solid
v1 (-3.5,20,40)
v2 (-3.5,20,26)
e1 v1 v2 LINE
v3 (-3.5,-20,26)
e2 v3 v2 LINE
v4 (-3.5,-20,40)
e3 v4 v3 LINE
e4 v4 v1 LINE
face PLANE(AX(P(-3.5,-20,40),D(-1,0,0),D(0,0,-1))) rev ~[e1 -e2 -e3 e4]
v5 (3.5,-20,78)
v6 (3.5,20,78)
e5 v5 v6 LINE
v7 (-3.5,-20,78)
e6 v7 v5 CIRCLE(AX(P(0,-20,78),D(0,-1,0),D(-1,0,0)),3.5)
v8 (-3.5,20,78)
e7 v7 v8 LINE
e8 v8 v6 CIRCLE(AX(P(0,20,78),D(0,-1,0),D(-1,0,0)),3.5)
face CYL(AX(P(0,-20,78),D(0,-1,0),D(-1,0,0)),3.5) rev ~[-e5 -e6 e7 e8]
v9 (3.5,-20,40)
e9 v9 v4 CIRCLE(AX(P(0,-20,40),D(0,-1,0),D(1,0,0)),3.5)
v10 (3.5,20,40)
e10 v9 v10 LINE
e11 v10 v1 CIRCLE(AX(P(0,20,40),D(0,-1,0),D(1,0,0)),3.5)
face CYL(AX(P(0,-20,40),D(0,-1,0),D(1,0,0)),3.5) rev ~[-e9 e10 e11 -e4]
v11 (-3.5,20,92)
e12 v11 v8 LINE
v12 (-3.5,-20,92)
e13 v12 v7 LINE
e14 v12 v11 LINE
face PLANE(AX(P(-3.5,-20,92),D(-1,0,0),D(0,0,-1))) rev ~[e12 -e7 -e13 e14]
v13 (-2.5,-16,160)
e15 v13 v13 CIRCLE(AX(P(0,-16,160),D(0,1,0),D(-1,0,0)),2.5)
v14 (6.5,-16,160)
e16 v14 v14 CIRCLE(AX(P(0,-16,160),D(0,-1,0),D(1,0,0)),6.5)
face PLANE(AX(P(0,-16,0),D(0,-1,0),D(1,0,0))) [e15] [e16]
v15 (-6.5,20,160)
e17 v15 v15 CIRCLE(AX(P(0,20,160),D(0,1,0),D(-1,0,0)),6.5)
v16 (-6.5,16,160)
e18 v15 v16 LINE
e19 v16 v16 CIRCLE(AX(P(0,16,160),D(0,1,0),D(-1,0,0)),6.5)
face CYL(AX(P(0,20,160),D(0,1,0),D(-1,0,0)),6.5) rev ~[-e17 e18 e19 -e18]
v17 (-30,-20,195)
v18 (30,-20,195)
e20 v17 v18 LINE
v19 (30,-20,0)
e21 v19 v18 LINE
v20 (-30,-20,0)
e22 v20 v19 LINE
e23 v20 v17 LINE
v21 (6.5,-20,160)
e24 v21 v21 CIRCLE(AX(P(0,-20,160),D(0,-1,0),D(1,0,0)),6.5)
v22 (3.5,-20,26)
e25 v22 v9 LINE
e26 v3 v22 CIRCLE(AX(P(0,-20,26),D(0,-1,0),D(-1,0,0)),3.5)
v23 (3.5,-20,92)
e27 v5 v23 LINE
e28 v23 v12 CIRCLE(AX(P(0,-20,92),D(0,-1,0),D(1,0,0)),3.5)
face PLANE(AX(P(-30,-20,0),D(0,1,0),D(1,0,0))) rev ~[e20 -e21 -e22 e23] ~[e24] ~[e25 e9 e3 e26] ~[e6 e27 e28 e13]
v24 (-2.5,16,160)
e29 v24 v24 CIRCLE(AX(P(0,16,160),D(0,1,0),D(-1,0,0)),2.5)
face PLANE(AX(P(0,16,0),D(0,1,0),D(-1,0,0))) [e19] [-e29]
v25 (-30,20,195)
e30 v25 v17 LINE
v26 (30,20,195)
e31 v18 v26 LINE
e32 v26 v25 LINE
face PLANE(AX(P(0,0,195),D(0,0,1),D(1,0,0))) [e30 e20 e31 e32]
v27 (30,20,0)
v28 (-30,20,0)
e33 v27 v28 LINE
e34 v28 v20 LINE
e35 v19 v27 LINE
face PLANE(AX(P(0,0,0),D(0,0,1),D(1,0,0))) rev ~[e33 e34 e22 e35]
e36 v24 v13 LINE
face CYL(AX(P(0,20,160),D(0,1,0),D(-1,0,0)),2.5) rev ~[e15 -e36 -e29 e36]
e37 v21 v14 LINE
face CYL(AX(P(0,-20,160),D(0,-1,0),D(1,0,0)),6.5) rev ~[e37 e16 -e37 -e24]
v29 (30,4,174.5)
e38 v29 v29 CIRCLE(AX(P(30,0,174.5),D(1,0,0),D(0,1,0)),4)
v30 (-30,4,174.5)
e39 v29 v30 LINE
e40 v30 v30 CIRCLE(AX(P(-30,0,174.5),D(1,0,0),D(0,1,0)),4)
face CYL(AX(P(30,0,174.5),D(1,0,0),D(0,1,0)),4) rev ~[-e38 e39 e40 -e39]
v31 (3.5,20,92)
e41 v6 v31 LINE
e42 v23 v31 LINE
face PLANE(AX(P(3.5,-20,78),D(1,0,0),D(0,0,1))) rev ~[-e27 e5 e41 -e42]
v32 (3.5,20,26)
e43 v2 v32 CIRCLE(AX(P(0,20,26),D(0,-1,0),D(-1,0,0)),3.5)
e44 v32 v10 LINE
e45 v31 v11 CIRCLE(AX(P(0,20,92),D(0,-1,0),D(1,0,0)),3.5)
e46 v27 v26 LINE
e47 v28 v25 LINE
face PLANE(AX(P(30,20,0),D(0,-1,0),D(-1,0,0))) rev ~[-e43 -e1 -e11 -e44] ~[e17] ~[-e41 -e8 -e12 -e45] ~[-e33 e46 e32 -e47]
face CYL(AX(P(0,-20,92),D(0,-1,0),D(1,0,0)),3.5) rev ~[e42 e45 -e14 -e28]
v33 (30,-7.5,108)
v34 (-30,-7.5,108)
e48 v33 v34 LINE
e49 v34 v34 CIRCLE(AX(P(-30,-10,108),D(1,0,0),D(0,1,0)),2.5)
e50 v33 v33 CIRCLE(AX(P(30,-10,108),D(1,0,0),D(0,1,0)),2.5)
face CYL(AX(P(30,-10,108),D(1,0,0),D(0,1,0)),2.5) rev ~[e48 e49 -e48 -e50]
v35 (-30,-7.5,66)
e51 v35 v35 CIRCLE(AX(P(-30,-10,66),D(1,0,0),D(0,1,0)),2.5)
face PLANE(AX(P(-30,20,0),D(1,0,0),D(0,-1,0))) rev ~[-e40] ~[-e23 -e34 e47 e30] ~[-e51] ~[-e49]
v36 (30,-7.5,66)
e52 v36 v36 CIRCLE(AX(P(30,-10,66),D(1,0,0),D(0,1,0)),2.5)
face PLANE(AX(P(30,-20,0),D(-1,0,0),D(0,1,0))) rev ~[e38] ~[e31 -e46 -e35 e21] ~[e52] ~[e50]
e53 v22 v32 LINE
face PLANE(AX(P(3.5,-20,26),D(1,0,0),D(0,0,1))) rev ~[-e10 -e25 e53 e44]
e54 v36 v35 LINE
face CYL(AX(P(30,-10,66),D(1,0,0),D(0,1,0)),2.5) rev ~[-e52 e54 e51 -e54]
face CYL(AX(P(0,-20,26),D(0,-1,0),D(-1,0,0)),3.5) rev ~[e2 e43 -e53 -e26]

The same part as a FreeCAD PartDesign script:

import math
import FreeCAD as App
import Part
import Sketcher
Q = App.Units.Quantity

doc = App.newDocument("Part")
body = doc.addObject("PartDesign::Body", "Body")

sketch1 = body.newObject("Sketcher::SketchObject", "Sketch")
sketch1.AttachmentSupport = (doc.getObject("XY_Plane"), [""])
sketch1.MapMode = "FlatFace"
sketch1.addGeometry([
    Part.LineSegment(App.Vector(30, -20, 0), App.Vector(30, 20, 0)),
    Part.LineSegment(App.Vector(30, 20, 0), App.Vector(-30, 20, 0)),
    Part.LineSegment(App.Vector(-30, 20, 0), App.Vector(-30, -20, 0)),
    Part.LineSegment(App.Vector(-30, -20, 0), App.Vector(30, -20, 0)),
], False)
sketch1.addConstraint([
    Sketcher.Constraint("Coincident", 0, 2, 1, 1),
    Sketcher.Constraint("Coincident", 1, 2, 2, 1),
    Sketcher.Constraint("Coincident", 2, 2, 3, 1),
    Sketcher.Constraint("Coincident", 3, 2, 0, 1),
    Sketcher.Constraint("Vertical", 0),
    Sketcher.Constraint("Horizontal", 1),
    Sketcher.Constraint("Vertical", 2),
    Sketcher.Constraint("Horizontal", 3),
    Sketcher.Constraint("Symmetric", 0, 2, 2, 2, -1, 1),
    Sketcher.Constraint("DistanceX", 1, 2, 1, 1, Q("60 mm")),
    Sketcher.Constraint("DistanceY", 0, 1, 0, 2, Q("40 mm")),
])
pad1 = body.newObject("PartDesign::Pad", "Pad")
pad1.Profile = sketch1
pad1.Length = 195

sketch2 = body.newObject("Sketcher::SketchObject", "Sketch001")
sketch2.AttachmentSupport = (doc.getObject("XZ_Plane"), [""])
sketch2.MapMode = "FlatFace"
sketch2.AttachmentOffset = App.Placement(App.Vector(0, 0, 20), App.Rotation())
sketch2.addGeometry([
    Part.ArcOfCircle(Part.Circle(App.Vector(0, 40, 0), App.Vector(0, 0, 1), 3.5), math.radians(0), math.radians(180)),
    Part.LineSegment(App.Vector(-3.5, 40, 0), App.Vector(-3.5, 26, 0)),
    Part.ArcOfCircle(Part.Circle(App.Vector(0, 26, 0), App.Vector(0, 0, 1), 3.5), math.radians(180), math.radians(360)),
    Part.LineSegment(App.Vector(3.5, 26, 0), App.Vector(3.5, 40, 0)),
    Part.ArcOfCircle(Part.Circle(App.Vector(0, 92, 0), App.Vector(0, 0, 1), 3.5), math.radians(0), math.radians(180)),
    Part.LineSegment(App.Vector(-3.5, 92, 0), App.Vector(-3.5, 78, 0)),
    Part.ArcOfCircle(Part.Circle(App.Vector(0, 78, 0), App.Vector(0, 0, 1), 3.5), math.radians(180), math.radians(360)),
    Part.LineSegment(App.Vector(3.5, 78, 0), App.Vector(3.5, 92, 0)),
], False)
sketch2.addConstraint([
    Sketcher.Constraint("Tangent", 0, 2, 1, 1),
    Sketcher.Constraint("Tangent", 1, 2, 2, 1),
    Sketcher.Constraint("Tangent", 2, 2, 3, 1),
    Sketcher.Constraint("Tangent", 3, 2, 0, 1),
    Sketcher.Constraint("Tangent", 4, 2, 5, 1),
    Sketcher.Constraint("Tangent", 5, 2, 6, 1),
    Sketcher.Constraint("Tangent", 6, 2, 7, 1),
    Sketcher.Constraint("Tangent", 7, 2, 4, 1),
    Sketcher.Constraint("Vertical", 1),
    Sketcher.Constraint("Vertical", 3),
    Sketcher.Constraint("Vertical", 5),
    Sketcher.Constraint("Vertical", 7),
    Sketcher.Constraint("Equal", 2, 4),
    Sketcher.Constraint("PointOnObject", 0, 3, -2),
    Sketcher.Constraint("PointOnObject", 4, 3, -2),
    Sketcher.Constraint("Equal", 3, 5),
    Sketcher.Constraint("Radius", 0, Q("3.5 mm")),
    Sketcher.Constraint("DistanceY", 1, 2, 1, 1, Q("14 mm")),
    Sketcher.Constraint("DistanceY", -1, 1, 0, 3, Q("40 mm")),
    Sketcher.Constraint("DistanceY", -1, 1, 4, 3, Q("92 mm")),
])
pocket1 = body.newObject("PartDesign::Pocket", "Pocket")
pocket1.Profile = sketch2
pocket1.Length = 40

sketch3 = body.newObject("Sketcher::SketchObject", "Sketch002")
sketch3.AttachmentSupport = (doc.getObject("YZ_Plane"), [""])
sketch3.MapMode = "FlatFace"
sketch3.AttachmentOffset = App.Placement(App.Vector(0, 0, 30), App.Rotation())
sketch3.addGeometry(Part.Circle(App.Vector(0, 174.5, 0), App.Vector(0, 0, 1), 4), False)
sketch3.addConstraint([
    Sketcher.Constraint("PointOnObject", 0, 3, -2),
    Sketcher.Constraint("Diameter", 0, Q("8 mm")),
    Sketcher.Constraint("DistanceY", -1, 1, 0, 3, Q("174.5 mm")),
])
pocket2 = body.newObject("PartDesign::Pocket", "Pocket001")
pocket2.Profile = sketch3
pocket2.Length = 60

sketch4 = body.newObject("Sketcher::SketchObject", "Sketch003")
sketch4.AttachmentSupport = (doc.getObject("XZ_Plane"), [""])
sketch4.MapMode = "FlatFace"
sketch4.AttachmentOffset = App.Placement(App.Vector(0, 0, -20), App.Rotation())
sketch4.addGeometry(Part.Circle(App.Vector(0, 160, 0), App.Vector(0, 0, 1), 2.5), False)
sketch4.addConstraint([
    Sketcher.Constraint("PointOnObject", 0, 3, -2),
    Sketcher.Constraint("Diameter", 0, Q("5 mm")),
    Sketcher.Constraint("DistanceY", -1, 1, 0, 3, Q("160 mm")),
])
pocket3 = body.newObject("PartDesign::Pocket", "Pocket002")
pocket3.Profile = sketch4
pocket3.Length = 40
pocket3.Reversed = True

sketch5 = body.newObject("Sketcher::SketchObject", "Sketch004")
sketch5.AttachmentSupport = (doc.getObject("YZ_Plane"), [""])
sketch5.MapMode = "FlatFace"
sketch5.AttachmentOffset = App.Placement(App.Vector(0, 0, 30), App.Rotation())
sketch5.addGeometry([
    Part.Circle(App.Vector(-10, 108, 0), App.Vector(0, 0, 1), 2.5),
    Part.Circle(App.Vector(-10, 66, 0), App.Vector(0, 0, 1), 2.5),
], False)
sketch5.addConstraint([
    Sketcher.Constraint("Equal", 0, 1),
    Sketcher.Constraint("Vertical", 0, 3, 1, 3),
    Sketcher.Constraint("Diameter", 0, Q("5 mm")),
    Sketcher.Constraint("DistanceX", 0, 3, -1, 1, Q("10 mm")),
    Sketcher.Constraint("DistanceY", -1, 1, 0, 3, Q("108 mm")),
    Sketcher.Constraint("DistanceY", -1, 1, 1, 3, Q("66 mm")),
])
pocket4 = body.newObject("PartDesign::Pocket", "Pocket003")
pocket4.Profile = sketch5
pocket4.Length = 80

sketch6 = body.newObject("Sketcher::SketchObject", "Sketch005")
sketch6.AttachmentSupport = (doc.getObject("XZ_Plane"), [""])
sketch6.MapMode = "FlatFace"
sketch6.AttachmentOffset = App.Placement(App.Vector(0, 0, -20), App.Rotation())
sketch6.addGeometry([
    Part.Circle(App.Vector(0, 160, 0), App.Vector(0, 0, 1), 6.5),
    Part.Circle(App.Vector(0, 160, 0), App.Vector(0, 0, 1), 2.5),
], False)
sketch6.addConstraint([
    Sketcher.Constraint("Coincident", 1, 3, 0, 3),
    Sketcher.Constraint("PointOnObject", 0, 3, -2),
    Sketcher.Constraint("Diameter", 0, Q("13 mm")),
    Sketcher.Constraint("Diameter", 1, Q("5 mm")),
    Sketcher.Constraint("DistanceY", -1, 1, 0, 3, Q("160 mm")),
])
pocket5 = body.newObject("PartDesign::Pocket", "Pocket004")
pocket5.Profile = sketch6
pocket5.Length = 4
pocket5.Reversed = True

sketch7 = body.newObject("Sketcher::SketchObject", "Sketch006")
sketch7.AttachmentSupport = (doc.getObject("XZ_Plane"), [""])
sketch7.MapMode = "FlatFace"
sketch7.AttachmentOffset = App.Placement(App.Vector(0, 0, 20), App.Rotation())
sketch7.addGeometry([
    Part.Circle(App.Vector(0, 160, 0), App.Vector(0, 0, 1), 6.5),
    Part.Circle(App.Vector(0, 160, 0), App.Vector(0, 0, 1), 2.5),
], False)
sketch7.addConstraint([
    Sketcher.Constraint("Coincident", 1, 3, 0, 3),
    Sketcher.Constraint("PointOnObject", 0, 3, -2),
    Sketcher.Constraint("Diameter", 0, Q("13 mm")),
    Sketcher.Constraint("Diameter", 1, Q("5 mm")),
    Sketcher.Constraint("DistanceY", -1, 1, 0, 3, Q("160 mm")),
])
pocket6 = body.newObject("PartDesign::Pocket", "Pocket005")
pocket6.Profile = sketch7
pocket6.Length = 4

doc.recompute()
